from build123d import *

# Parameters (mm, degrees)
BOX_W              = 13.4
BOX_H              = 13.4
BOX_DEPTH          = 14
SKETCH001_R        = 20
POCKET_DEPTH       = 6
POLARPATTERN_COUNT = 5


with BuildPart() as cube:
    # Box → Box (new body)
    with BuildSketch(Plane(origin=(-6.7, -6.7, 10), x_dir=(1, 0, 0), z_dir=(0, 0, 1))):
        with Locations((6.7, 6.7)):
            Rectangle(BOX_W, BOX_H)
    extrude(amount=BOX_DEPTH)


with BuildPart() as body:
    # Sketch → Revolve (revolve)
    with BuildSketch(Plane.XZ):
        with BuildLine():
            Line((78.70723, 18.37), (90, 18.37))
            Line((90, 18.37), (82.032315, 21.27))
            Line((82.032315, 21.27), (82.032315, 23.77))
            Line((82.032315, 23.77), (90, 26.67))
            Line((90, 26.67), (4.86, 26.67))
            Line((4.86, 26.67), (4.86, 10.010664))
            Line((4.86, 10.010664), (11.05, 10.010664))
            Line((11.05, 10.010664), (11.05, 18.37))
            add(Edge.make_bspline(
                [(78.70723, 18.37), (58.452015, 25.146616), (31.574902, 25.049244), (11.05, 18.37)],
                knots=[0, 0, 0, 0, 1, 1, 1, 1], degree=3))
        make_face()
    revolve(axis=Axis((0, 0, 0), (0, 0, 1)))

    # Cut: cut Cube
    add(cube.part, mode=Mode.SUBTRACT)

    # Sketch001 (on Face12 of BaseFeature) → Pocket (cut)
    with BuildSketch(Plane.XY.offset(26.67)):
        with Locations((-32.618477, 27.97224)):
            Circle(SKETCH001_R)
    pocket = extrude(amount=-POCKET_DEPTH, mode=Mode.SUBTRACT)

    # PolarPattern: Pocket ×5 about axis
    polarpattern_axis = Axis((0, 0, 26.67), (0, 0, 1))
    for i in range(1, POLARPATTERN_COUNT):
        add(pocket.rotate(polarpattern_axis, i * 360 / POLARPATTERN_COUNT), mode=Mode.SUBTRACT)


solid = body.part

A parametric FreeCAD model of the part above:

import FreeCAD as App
import Part
import Sketcher
Q = App.Units.Quantity


def add_polygon(sketch, points):
    """Adds a closed chain of lines whose ends are joined by coincident constraints."""
    first, n = sketch.GeometryCount, len(points)
    for a, b in zip(points, points[1:] + points[:1]):
        sketch.addGeometry(Part.LineSegment(App.Vector(*a, 0), App.Vector(*b, 0)), False)
    for i in range(n):
        sketch.addConstraint(Sketcher.Constraint("Coincident", first + i, 2, first + (i + 1) % n, 1))

doc = App.newDocument("Part")
body = doc.addObject("PartDesign::Body", "Body")

# Sketch on XY plane
sketch1 = body.newObject("Sketcher::SketchObject", "Sketch")
sketch1.AttachmentSupport = (doc.getObject("XY_Plane"), [""])
sketch1.MapMode = "FlatFace"
sketch1.AttachmentOffset = App.Placement(App.Vector(0, 0, 10), App.Rotation())
add_polygon(sketch1, [(-7, 7), (-7, -7), (7, -7), (7, 7)])  # lines 0-3
sketch1.addConstraint([
    Sketcher.Constraint("Vertical", 0),
    Sketcher.Constraint("Horizontal", 1),
    Sketcher.Constraint("Vertical", 2),
    Sketcher.Constraint("Horizontal", 3),
    Sketcher.Constraint("Symmetric", 0, 2, 2, 2, -1, 1),
    Sketcher.Constraint("Equal", 3, 0),
    Sketcher.Constraint("DistanceX", 1, 1, 1, 2, 13.4),
])
pad1 = body.newObject("PartDesign::Pad", "Pad")
pad1.Profile = sketch1
pad1.Length = 14
body2 = doc.addObject("PartDesign::Body", "Body001")

# Sketch on XZ plane
sketch2 = body2.newObject("Sketcher::SketchObject", "Sketch001")
sketch2.AttachmentSupport = (doc.getObject("XZ_Plane001"), [""])
sketch2.MapMode = "FlatFace"
sketch2.addGeometry([
    Part.LineSegment(App.Vector(78.70723, 18.37, 0), App.Vector(90, 18.37, 0)),  # 0
    Part.LineSegment(App.Vector(90, 18.37, 0), App.Vector(82.032315, 21.27, 0)),  # 1
    Part.LineSegment(App.Vector(82.032315, 21.27, 0), App.Vector(82.032315, 23.77, 0)),  # 2
    Part.LineSegment(App.Vector(82.032315, 23.77, 0), App.Vector(90, 26.67, 0)),  # 3
    Part.LineSegment(App.Vector(90, 26.67, 0), App.Vector(4.86, 26.67, 0)),  # 4
    Part.LineSegment(App.Vector(4.86, 26.67, 0), App.Vector(4.86, 10.010664, 0)),  # 5
    Part.LineSegment(App.Vector(4.86, 10.010664, 0), App.Vector(11.05, 10.010664, 0)),  # 6
    Part.LineSegment(App.Vector(11.05, 10.010664, 0), App.Vector(11.05, 18.37, 0)),  # 7
    Part.BSplineCurve([App.Vector(78.70723, 18.37, 0), App.Vector(58.452015, 25.146616, 0), App.Vector(31.574902, 25.049244, 0), App.Vector(11.05, 18.37, 0)], [4, 4], [0, 1], False, 3, [1, 1, 1, 1], False),  # 8
], False)
sketch2.addConstraint([
    Sketcher.Constraint("Block", 8),
    Sketcher.Constraint("Coincident", 0, 2, 1, 1),
    Sketcher.Constraint("Coincident", 1, 2, 2, 1),
    Sketcher.Constraint("Coincident", 2, 2, 3, 1),
    Sketcher.Constraint("Coincident", 3, 2, 4, 1),
    Sketcher.Constraint("Coincident", 4, 2, 5, 1),
    Sketcher.Constraint("Coincident", 5, 2, 6, 1),
    Sketcher.Constraint("Coincident", 6, 2, 7, 1),
    Sketcher.Constraint("Coincident", 7, 2, 8, 2),
    Sketcher.Constraint("Coincident", 8, 1, 0, 1),
    Sketcher.Constraint("Horizontal", 0),
    Sketcher.Constraint("Vertical", 2),
    Sketcher.Constraint("Horizontal", 4),
    Sketcher.Constraint("Vertical", 5),
    Sketcher.Constraint("Horizontal", 6),
    Sketcher.Constraint("Vertical", 7),
    Sketcher.Constraint("Vertical", 0, 2, 3, 2),
    Sketcher.Constraint("Equal", 1, 3),
    Sketcher.Constraint("Angle", 1, Q("160.000001 deg")),
    Sketcher.Constraint("DistanceY", 2, 1, 2, 2, 2.5),
    Sketcher.Constraint("DistanceX", -1, 1, 0, 2, 90.0),
    Sketcher.Constraint("DistanceX", 4, 2, 4, 1, 85.14),
    Sketcher.Constraint("DistanceY", 0, 2, 1, 2, 2.9),
    Sketcher.Constraint("DistanceY", 5, 2, 5, 1, 16.659336),
])
revolution = body2.newObject("PartDesign::Revolution", "Revolution")
revolution.Profile = sketch2
revolution.ReferenceAxis = (sketch2, ["V_Axis"])
revolution.Angle = 360
doc.recompute()

boolean = body2.newObject("PartDesign::Boolean", "Boolean")
boolean.Type = "Cut"
boolean.addObjects([body])

# Sketch on XY plane
sketch3 = body2.newObject("Sketcher::SketchObject", "Sketch002")
sketch3.AttachmentSupport = (doc.getObject("XY_Plane001"), [""])
sketch3.MapMode = "FlatFace"
sketch3.AttachmentOffset = App.Placement(App.Vector(0, 0, 26.67), App.Rotation())
sketch3.addGeometry(Part.Circle(App.Vector(-33, 28, 0), App.Vector(0, 0, 1), 20), False)
sketch3.addConstraint([
    Sketcher.Constraint("Diameter", 0, 40.0),
    Sketcher.Constraint("DistanceY", -1, 1, 0, 3, 27.97224),
    Sketcher.Constraint("DistanceX", 0, 3, -1, 1, 32.618477),
])
pocket1 = body2.newObject("PartDesign::Pocket", "Pocket")
pocket1.Profile = sketch3
pocket1.Length = 6
doc.recompute()

polarpattern = body2.newObject("PartDesign::PolarPattern", "PolarPattern")
polarpattern.Originals = [pocket1]
polarpattern.Axis = (doc.getObject("Z_Axis001"), [""])
polarpattern.Angle = 360
polarpattern.Occurrences = 5
body2.Tip = polarpattern

doc.recompute()
